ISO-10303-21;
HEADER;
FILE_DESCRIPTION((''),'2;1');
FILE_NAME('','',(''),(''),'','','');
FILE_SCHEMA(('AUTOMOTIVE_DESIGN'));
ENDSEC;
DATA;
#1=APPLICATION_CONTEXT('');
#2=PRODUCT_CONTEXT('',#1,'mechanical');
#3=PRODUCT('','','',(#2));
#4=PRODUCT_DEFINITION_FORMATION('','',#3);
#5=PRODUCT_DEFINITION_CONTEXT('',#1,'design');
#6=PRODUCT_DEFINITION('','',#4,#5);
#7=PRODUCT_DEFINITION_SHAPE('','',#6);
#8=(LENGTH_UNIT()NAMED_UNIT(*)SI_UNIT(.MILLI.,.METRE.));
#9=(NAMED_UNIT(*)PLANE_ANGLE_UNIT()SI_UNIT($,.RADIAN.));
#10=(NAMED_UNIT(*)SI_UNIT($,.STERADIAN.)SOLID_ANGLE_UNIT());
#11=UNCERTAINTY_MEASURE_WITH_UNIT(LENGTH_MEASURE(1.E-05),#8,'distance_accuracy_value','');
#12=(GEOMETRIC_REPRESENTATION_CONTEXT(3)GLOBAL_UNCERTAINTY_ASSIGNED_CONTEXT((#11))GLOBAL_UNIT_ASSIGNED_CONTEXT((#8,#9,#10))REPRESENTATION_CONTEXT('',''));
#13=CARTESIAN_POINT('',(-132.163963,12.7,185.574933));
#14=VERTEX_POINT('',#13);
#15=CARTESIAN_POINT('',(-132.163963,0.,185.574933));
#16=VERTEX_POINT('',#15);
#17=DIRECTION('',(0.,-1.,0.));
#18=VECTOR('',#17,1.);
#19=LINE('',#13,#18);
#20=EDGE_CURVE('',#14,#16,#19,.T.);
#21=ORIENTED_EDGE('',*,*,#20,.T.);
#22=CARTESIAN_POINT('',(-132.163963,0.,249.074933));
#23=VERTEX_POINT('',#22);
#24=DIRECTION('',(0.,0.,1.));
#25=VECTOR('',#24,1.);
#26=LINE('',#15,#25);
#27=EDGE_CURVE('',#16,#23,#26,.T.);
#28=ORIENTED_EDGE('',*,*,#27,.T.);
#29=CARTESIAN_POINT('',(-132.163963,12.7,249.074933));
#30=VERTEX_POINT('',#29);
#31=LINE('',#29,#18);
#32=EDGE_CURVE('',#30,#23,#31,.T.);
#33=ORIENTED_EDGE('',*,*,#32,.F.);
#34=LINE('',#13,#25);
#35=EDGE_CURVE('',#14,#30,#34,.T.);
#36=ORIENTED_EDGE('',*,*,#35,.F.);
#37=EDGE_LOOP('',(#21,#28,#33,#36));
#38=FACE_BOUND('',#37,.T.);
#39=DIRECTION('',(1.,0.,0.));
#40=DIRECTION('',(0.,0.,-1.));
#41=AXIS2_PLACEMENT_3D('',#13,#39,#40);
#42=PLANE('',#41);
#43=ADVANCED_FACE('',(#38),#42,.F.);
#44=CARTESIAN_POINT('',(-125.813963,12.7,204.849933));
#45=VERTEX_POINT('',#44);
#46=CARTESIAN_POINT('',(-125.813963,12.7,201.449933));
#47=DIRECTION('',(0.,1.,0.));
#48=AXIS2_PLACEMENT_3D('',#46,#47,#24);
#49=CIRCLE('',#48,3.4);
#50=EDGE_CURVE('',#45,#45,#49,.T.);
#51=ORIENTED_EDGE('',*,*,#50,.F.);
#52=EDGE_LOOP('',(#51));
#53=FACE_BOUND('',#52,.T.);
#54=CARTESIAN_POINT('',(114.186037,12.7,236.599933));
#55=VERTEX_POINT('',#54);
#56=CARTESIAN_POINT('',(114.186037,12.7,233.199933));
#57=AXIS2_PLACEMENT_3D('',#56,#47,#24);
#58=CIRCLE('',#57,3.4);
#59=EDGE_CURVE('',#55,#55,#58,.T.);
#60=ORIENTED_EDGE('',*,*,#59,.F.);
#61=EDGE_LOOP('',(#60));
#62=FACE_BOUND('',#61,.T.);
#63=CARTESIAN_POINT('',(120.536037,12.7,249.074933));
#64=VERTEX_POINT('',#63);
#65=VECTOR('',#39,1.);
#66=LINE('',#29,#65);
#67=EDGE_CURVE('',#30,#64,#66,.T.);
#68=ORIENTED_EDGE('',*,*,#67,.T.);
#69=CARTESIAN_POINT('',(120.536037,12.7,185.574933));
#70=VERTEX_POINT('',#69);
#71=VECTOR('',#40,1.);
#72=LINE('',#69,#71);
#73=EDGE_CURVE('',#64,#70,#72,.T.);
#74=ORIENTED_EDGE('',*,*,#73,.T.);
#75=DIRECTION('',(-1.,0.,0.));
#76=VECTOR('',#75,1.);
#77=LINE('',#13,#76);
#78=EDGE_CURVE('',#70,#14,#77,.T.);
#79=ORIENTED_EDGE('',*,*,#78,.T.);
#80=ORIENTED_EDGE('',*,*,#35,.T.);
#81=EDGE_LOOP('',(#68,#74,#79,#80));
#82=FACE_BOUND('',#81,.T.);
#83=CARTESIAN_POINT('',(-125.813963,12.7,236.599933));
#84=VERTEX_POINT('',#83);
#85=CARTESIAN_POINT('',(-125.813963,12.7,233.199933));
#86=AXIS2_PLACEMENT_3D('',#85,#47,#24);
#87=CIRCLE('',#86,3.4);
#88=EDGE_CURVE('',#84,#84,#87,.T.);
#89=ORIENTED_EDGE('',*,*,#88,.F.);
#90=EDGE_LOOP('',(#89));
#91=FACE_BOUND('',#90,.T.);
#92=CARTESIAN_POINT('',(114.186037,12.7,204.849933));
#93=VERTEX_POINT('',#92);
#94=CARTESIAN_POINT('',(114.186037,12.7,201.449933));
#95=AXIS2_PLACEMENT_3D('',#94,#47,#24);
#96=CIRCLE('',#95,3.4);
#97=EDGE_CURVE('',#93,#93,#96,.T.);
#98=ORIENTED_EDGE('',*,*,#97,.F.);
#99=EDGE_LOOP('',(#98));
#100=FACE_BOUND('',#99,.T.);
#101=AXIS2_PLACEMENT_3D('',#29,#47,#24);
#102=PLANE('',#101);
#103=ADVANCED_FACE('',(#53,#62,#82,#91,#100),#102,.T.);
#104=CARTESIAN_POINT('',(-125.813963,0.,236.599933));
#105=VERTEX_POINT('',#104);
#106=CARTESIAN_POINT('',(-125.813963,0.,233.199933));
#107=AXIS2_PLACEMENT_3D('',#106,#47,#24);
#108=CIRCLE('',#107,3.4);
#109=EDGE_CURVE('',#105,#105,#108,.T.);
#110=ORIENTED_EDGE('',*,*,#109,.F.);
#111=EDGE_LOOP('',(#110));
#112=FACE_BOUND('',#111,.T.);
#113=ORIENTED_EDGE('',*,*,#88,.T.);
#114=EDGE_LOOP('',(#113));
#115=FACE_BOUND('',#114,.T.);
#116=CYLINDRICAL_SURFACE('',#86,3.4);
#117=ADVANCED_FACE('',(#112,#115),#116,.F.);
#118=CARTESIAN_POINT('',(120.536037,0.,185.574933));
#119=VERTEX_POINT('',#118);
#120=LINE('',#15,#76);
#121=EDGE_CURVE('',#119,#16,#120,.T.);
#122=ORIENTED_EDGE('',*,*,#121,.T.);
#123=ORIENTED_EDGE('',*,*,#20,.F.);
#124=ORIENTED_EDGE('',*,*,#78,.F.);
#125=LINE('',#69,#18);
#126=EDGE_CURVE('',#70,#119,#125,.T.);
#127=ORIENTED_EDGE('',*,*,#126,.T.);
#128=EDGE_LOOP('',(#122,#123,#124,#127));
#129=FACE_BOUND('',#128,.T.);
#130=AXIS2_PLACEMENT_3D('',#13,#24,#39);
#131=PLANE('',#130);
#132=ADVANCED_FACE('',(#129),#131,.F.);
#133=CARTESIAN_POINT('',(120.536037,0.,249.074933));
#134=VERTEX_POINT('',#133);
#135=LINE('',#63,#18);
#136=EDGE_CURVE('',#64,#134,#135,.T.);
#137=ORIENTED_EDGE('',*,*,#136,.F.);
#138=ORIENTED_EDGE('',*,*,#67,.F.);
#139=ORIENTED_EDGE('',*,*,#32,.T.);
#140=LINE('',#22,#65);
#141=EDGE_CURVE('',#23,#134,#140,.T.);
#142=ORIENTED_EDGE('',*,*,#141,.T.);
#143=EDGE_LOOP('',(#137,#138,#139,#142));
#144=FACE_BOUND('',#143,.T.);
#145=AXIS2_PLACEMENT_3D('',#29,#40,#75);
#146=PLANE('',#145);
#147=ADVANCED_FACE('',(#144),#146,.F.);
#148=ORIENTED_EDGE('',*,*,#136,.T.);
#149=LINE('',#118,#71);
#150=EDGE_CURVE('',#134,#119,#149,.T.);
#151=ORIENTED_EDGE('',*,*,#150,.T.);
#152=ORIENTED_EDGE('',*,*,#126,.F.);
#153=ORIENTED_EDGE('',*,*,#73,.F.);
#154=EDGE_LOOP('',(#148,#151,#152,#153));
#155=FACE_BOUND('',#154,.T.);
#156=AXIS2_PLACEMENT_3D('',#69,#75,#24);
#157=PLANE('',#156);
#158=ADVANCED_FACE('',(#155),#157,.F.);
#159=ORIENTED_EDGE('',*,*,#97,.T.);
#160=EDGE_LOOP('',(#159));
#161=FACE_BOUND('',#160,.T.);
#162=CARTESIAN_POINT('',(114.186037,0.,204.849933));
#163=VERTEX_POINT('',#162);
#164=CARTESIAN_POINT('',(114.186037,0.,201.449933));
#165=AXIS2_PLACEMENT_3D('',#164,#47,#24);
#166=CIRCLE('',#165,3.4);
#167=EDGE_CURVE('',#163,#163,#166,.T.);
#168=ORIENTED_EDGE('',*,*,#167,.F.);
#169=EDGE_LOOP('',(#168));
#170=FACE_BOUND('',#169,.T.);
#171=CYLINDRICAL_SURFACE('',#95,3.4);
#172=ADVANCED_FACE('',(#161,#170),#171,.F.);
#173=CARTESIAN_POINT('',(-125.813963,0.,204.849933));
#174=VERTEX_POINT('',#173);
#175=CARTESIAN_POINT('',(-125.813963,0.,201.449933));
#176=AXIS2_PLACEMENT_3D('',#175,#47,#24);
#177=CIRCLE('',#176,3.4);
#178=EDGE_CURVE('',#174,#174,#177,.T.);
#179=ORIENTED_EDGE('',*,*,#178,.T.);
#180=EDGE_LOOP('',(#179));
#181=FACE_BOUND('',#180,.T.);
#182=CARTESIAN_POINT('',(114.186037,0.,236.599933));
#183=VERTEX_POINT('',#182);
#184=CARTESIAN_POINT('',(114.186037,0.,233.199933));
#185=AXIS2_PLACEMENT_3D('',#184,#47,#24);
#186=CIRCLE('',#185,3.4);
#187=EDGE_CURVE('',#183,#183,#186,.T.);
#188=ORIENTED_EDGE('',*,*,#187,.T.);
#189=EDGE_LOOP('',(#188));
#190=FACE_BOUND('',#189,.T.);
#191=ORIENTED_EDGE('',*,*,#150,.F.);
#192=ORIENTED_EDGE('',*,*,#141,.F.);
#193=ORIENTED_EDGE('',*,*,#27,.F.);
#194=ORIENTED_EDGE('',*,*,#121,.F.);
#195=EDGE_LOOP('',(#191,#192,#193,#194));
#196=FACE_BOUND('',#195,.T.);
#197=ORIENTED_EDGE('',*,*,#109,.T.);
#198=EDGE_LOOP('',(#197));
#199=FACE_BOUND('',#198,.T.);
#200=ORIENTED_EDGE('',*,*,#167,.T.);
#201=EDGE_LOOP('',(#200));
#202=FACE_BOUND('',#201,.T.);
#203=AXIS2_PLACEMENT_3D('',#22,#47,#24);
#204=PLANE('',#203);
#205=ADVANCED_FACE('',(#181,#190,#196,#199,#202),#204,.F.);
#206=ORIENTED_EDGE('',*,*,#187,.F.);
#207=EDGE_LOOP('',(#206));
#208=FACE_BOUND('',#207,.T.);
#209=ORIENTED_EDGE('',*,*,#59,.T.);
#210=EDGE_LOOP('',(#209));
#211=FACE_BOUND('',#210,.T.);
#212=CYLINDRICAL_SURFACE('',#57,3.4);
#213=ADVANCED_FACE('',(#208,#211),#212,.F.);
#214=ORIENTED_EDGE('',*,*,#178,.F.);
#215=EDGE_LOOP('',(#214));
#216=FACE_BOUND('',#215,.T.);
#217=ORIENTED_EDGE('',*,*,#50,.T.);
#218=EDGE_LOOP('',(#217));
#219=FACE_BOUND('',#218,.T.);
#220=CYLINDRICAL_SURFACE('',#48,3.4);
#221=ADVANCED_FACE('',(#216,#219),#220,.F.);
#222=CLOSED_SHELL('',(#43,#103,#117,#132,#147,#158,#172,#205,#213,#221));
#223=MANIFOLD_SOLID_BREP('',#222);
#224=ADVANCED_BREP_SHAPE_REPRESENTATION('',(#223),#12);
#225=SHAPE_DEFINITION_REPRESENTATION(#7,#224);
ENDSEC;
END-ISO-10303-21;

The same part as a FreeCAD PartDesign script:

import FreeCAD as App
import Part
import Sketcher

V = App.Vector


def add_polygon(sketch, points):
    """Adds a closed chain of lines whose ends are joined by coincident constraints."""
    first, n = sketch.GeometryCount, len(points)
    for a, b in zip(points, points[1:] + points[:1]):
        sketch.addGeometry(Part.LineSegment(App.Vector(*a, 0), App.Vector(*b, 0)), False)
    for i in range(n):
        sketch.addConstraint(Sketcher.Constraint("Coincident", first + i, 2, first + (i + 1) % n, 1))

doc = App.newDocument("Part")
body = doc.addObject("PartDesign::Body", "Body")

# Sketch on XZ plane
sketch1 = body.newObject("Sketcher::SketchObject", "Sketch")
sketch1.AttachmentSupport = (doc.getObject("XZ_Plane"), [""])
sketch1.MapMode = "FlatFace"
add_polygon(sketch1, [(-132.163963, 185.574933), (-132.163963, 249.074933), (120.536037, 249.074933), (120.536037, 185.574933)])  # lines 0-3
sketch1.addConstraint(Sketcher.Constraint("Vertical", 0))
sketch1.addConstraint(Sketcher.Constraint("Horizontal", 1))
sketch1.addConstraint(Sketcher.Constraint("Vertical", 2))
sketch1.addConstraint(Sketcher.Constraint("Horizontal", 3))
sketch1.addConstraint(Sketcher.Constraint("DistanceX", 1, 1, 1, 2, 252.7))
sketch1.addConstraint(Sketcher.Constraint("DistanceY", 0, 1, 0, 2, 63.5))
sketch1.addConstraint(Sketcher.Constraint("DistanceX", 0, 2, -1, 1, 132.163963))
sketch1.addConstraint(Sketcher.Constraint("DistanceY", -1, 1, 0, 2, 249.074933))
pad1 = body.newObject("PartDesign::Pad", "Pad")
pad1.Profile = sketch1
pad1.Length = 12.7
pad1.Reversed = True

# Sketch on XZ plane
sketch2 = body.newObject("Sketcher::SketchObject", "Sketch001")
sketch2.AttachmentSupport = (doc.getObject("XZ_Plane"), [""])
sketch2.MapMode = "FlatFace"
sketch2.AttachmentOffset = App.Placement(V(0, 0, -12.7), App.Rotation())
sketch2.addGeometry(Part.Circle(V(-125.813963, 201.449933, 0), V(0, 0, 1), 3.4), False)
sketch2.addGeometry(Part.Circle(V(-125.813963, 233.199933, 0), V(0, 0, 1), 3.4), False)
sketch2.addGeometry(Part.Circle(V(114.186037, 201.449933, 0), V(0, 0, 1), 3.4), False)
sketch2.addGeometry(Part.Circle(V(114.186037, 233.199933, 0), V(0, 0, 1), 3.4), False)
sketch2.addConstraint(Sketcher.Constraint("Equal", 0, 1))
sketch2.addConstraint(Sketcher.Constraint("Equal", 1, 2))
sketch2.addConstraint(Sketcher.Constraint("Equal", 2, 3))
sketch2.addConstraint(Sketcher.Constraint("Horizontal", 0, 3, 2, 3))
sketch2.addConstraint(Sketcher.Constraint("Horizontal", 1, 3, 3, 3))
sketch2.addConstraint(Sketcher.Constraint("Vertical", 0, 3, 1, 3))
sketch2.addConstraint(Sketcher.Constraint("Vertical", 2, 3, 3, 3))
sketch2.addConstraint(Sketcher.Constraint("Diameter", 0, 6.8))
sketch2.addConstraint(Sketcher.Constraint("DistanceX", 0, 3, 2, 3, 240.0))
sketch2.addConstraint(Sketcher.Constraint("DistanceY", 0, 3, 1, 3, 31.75))
sketch2.addConstraint(Sketcher.Constraint("DistanceX", 0, 3, -1, 1, 125.813963))
sketch2.addConstraint(Sketcher.Constraint("DistanceY", -1, 1, 0, 3, 201.449933))
doc.recompute()
hole = body.newObject("PartDesign::Hole", "Hole")
hole.Profile = sketch2
hole.ThreadType = "None"
hole.Diameter = 6.8
hole.DepthType = "Dimension"
hole.Depth = 40
hole.DrillPoint = "Angled"
hole.DrillPointAngle = 118
hole.Reversed = True

doc.recompute()
